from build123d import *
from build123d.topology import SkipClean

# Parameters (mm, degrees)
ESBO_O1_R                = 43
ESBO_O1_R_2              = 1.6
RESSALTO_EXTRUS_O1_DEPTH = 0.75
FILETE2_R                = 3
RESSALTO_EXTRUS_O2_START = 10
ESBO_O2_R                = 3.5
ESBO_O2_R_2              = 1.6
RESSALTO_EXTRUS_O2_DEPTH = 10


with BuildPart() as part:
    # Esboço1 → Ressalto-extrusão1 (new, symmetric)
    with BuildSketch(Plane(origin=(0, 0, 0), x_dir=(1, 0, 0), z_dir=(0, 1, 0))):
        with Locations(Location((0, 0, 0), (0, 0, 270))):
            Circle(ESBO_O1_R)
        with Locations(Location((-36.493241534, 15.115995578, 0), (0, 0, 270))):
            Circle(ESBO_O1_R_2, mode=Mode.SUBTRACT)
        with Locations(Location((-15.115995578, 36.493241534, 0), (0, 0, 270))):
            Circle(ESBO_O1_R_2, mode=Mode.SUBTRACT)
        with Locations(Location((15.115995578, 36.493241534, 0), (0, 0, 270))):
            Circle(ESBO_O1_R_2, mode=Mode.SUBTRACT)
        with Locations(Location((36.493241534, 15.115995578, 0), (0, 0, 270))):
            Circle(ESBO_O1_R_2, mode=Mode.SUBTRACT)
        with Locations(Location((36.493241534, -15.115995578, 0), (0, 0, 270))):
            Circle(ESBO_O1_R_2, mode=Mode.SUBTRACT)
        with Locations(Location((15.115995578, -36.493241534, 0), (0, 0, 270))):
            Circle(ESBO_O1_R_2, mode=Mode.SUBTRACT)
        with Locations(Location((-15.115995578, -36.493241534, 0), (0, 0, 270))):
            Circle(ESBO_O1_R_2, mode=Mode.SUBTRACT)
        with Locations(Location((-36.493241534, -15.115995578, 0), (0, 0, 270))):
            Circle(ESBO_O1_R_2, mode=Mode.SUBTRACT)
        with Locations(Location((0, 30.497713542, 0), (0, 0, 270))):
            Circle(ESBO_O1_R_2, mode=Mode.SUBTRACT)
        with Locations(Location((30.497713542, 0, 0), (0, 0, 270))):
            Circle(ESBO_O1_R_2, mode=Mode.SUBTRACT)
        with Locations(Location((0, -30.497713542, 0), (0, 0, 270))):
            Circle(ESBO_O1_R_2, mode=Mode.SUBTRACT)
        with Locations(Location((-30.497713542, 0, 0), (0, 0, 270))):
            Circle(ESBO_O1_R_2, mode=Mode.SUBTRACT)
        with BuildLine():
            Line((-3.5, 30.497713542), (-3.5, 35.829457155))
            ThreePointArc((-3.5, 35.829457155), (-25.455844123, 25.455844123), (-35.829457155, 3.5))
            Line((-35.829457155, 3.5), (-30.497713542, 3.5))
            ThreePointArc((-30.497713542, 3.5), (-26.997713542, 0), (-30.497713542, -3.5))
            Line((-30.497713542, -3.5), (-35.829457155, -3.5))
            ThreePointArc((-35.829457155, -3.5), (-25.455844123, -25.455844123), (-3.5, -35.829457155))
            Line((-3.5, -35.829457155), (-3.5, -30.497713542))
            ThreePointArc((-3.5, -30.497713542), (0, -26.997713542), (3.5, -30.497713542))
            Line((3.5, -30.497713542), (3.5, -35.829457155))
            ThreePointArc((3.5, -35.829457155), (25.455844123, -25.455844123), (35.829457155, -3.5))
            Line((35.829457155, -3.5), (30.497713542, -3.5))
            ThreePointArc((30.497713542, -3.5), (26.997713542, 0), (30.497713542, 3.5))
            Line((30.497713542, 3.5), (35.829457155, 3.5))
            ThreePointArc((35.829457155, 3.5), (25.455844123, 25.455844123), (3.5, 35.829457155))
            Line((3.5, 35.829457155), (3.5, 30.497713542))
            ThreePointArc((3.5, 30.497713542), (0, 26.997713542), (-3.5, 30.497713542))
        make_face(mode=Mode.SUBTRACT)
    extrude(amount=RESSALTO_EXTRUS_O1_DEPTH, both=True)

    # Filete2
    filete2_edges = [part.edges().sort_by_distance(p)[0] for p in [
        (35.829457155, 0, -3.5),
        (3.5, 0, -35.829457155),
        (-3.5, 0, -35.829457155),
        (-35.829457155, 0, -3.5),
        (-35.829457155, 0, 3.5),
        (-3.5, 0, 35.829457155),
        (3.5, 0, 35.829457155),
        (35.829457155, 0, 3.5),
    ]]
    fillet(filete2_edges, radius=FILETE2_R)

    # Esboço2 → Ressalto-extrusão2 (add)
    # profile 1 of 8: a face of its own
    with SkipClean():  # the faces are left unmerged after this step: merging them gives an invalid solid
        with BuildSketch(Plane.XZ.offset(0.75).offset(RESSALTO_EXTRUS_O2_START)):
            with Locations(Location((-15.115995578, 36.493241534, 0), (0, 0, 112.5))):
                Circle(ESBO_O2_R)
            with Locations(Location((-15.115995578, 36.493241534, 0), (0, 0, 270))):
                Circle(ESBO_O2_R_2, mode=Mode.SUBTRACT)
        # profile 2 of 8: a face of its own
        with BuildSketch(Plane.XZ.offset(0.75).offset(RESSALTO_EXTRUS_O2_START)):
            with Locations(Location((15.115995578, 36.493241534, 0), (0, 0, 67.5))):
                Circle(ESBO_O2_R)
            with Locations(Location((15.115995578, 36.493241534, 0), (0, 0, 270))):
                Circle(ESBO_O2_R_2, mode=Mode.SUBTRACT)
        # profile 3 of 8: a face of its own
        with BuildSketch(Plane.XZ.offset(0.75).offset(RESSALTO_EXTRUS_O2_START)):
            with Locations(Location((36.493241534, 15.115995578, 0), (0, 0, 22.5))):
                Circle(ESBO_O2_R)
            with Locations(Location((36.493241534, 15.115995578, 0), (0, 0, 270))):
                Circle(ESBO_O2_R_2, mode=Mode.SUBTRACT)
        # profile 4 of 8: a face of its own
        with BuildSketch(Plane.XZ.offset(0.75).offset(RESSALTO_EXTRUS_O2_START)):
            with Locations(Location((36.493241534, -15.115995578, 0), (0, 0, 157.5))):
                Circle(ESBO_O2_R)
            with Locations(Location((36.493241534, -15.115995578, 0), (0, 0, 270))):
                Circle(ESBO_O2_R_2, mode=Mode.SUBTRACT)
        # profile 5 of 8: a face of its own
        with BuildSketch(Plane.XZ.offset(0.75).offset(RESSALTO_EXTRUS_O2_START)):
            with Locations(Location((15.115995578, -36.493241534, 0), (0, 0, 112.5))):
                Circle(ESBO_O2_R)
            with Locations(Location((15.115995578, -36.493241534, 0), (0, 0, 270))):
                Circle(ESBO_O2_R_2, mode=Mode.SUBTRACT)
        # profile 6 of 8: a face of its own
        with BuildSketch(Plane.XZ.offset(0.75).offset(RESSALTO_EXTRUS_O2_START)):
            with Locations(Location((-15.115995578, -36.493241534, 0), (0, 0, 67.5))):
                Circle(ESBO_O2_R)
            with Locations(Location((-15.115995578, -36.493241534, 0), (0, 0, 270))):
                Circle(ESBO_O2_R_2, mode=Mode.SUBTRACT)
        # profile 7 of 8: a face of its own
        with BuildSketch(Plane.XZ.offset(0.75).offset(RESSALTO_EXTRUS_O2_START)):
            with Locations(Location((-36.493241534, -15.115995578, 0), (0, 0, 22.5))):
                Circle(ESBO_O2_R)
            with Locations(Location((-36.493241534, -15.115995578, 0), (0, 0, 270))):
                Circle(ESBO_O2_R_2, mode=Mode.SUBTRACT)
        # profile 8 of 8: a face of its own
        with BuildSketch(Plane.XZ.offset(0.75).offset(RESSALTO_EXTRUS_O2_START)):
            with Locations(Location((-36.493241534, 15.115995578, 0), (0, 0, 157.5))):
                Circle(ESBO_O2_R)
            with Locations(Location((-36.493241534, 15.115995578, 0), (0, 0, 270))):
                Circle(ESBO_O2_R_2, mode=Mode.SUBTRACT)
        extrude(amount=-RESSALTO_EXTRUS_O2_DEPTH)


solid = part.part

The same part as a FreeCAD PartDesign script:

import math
import FreeCAD as App
import Part
import Sketcher

V = App.Vector
Q = App.Units.Quantity


def edges_at(feature, points):
    """Names of the edges that pass closest to the given points."""
    edges = feature.Shape.Edges
    near = lambda p: min(range(len(edges)), key=lambda i: edges[i].distToShape(Part.Vertex(*p))[0])
    return sorted({f"Edge{near(p) + 1}" for p in points})

doc = App.newDocument("Part")
body = doc.addObject("PartDesign::Body", "Body")

sketch1 = body.newObject("Sketcher::SketchObject", "Sketch")
sketch1.AttachmentSupport = (doc.getObject("XZ_Plane"), [""])
sketch1.MapMode = "FlatFace"
sketch1.addGeometry([
    Part.Circle(V(0, 0, 0), V(0, 0, 1), 43),
    Part.Circle(V(-36.5, -15.1, 0), V(0, 0, 1), 1.6),
    Part.Circle(V(-15.1, -36.5, 0), V(0, 0, 1), 1.6),
    Part.Circle(V(0, -30.5, 0), V(0, 0, 1), 1.6),
    Part.Circle(V(-30.5, 0, 0), V(0, 0, 1), 1.6),
    Part.Circle(V(-36.5, 15.1, 0), V(0, 0, 1), 1.6),
    Part.Circle(V(-15.1, 36.5, 0), V(0, 0, 1), 1.6),
    Part.Circle(V(15.1, -36.5, 0), V(0, 0, 1), 1.6),
    Part.Circle(V(36.5, -15.1, 0), V(0, 0, 1), 1.6),
    Part.Circle(V(30.5, 0, 0), V(0, 0, 1), 1.6),
    Part.LineSegment(V(-3.5, -35.8, 0), V(-3.5, -30.5, 0)),
    Part.ArcOfCircle(Part.Circle(V(0, -30.5, 0), V(0, 0, 1), 3.5), math.radians(0), math.radians(180)),
    Part.LineSegment(V(3.5, -30.5, 0), V(3.5, -35.8, 0)),
    Part.ArcOfCircle(Part.Circle(V(0, 0, 0), V(0, 0, 1), 36), math.radians(-84), math.radians(-6)),
    Part.LineSegment(V(35.8, -3.5, 0), V(30.5, -3.5, 0)),
    Part.ArcOfCircle(Part.Circle(V(30.5, 0, 0), V(0, 0, 1), 3.5), math.radians(90), math.radians(270)),
    Part.LineSegment(V(30.5, 3.5, 0), V(35.8, 3.5, 0)),
    Part.ArcOfCircle(Part.Circle(V(0, 0, 0), V(0, 0, 1), 36), math.radians(6), math.radians(84)),
    Part.LineSegment(V(3.5, 35.8, 0), V(3.5, 30.5, 0)),
    Part.ArcOfCircle(Part.Circle(V(0, 30.5, 0), V(0, 0, 1), 3.5), math.radians(180), math.radians(360)),
    Part.LineSegment(V(-3.5, 30.5, 0), V(-3.5, 35.8, 0)),
    Part.ArcOfCircle(Part.Circle(V(0, 0, 0), V(0, 0, 1), 36), math.radians(96), math.radians(174)),
    Part.LineSegment(V(-35.8, 3.5, 0), V(-30.5, 3.5, 0)),
    Part.ArcOfCircle(Part.Circle(V(-30.5, 0, 0), V(0, 0, 1), 3.5), math.radians(-90), math.radians(90)),
    Part.LineSegment(V(-30.5, -3.5, 0), V(-35.8, -3.5, 0)),
    Part.ArcOfCircle(Part.Circle(V(0, 0, 0), V(0, 0, 1), 36), math.radians(-174), math.radians(-96)),
    Part.Circle(V(0, 30.5, 0), V(0, 0, 1), 1.6),
    Part.Circle(V(15.1, 36.5, 0), V(0, 0, 1), 1.6),
    Part.Circle(V(36.5, 15.1, 0), V(0, 0, 1), 1.6),
], False)
sketch1.addConstraint([
    Sketcher.Constraint("Tangent", 10, 2, 11, 2),
    Sketcher.Constraint("Tangent", 11, 1, 12, 1),
    Sketcher.Constraint("Coincident", 12, 2, 13, 1),
    Sketcher.Constraint("Coincident", 13, 2, 14, 1),
    Sketcher.Constraint("Tangent", 14, 2, 15, 2),
    Sketcher.Constraint("Tangent", 15, 1, 16, 1),
    Sketcher.Constraint("Coincident", 16, 2, 17, 1),
    Sketcher.Constraint("Coincident", 17, 2, 18, 1),
    Sketcher.Constraint("Tangent", 18, 2, 19, 2),
    Sketcher.Constraint("Tangent", 19, 1, 20, 1),
    Sketcher.Constraint("Coincident", 20, 2, 21, 1),
    Sketcher.Constraint("Coincident", 21, 2, 22, 1),
    Sketcher.Constraint("Tangent", 22, 2, 23, 2),
    Sketcher.Constraint("Tangent", 23, 1, 24, 1),
    Sketcher.Constraint("Coincident", 24, 2, 25, 1),
    Sketcher.Constraint("Coincident", 25, 2, 10, 1),
    Sketcher.Constraint("Vertical", 10),
    Sketcher.Constraint("Vertical", 12),
    Sketcher.Constraint("Horizontal", 14),
    Sketcher.Constraint("Horizontal", 16),
    Sketcher.Constraint("Vertical", 18),
    Sketcher.Constraint("Vertical", 20),
    Sketcher.Constraint("Horizontal", 22),
    Sketcher.Constraint("Horizontal", 24),
    Sketcher.Constraint("Coincident", 0, 3, -1, 1),
    Sketcher.Constraint("Coincident", 13, 3, -1, 1),
    Sketcher.Constraint("Coincident", 17, 3, -1, 1),
    Sketcher.Constraint("Coincident", 21, 3, -1, 1),
    Sketcher.Constraint("Coincident", 25, 3, -1, 1),
    Sketcher.Constraint("Coincident", 11, 3, 3, 3),
    Sketcher.Constraint("Coincident", 15, 3, 9, 3),
    Sketcher.Constraint("Coincident", 23, 3, 4, 3),
    Sketcher.Constraint("Coincident", 26, 3, 19, 3),
    Sketcher.Constraint("Equal", 1, 2),
    Sketcher.Constraint("Equal", 2, 3),
    Sketcher.Constraint("Equal", 3, 4),
    Sketcher.Constraint("Equal", 4, 5),
    Sketcher.Constraint("Equal", 5, 6),
    Sketcher.Constraint("Equal", 6, 7),
    Sketcher.Constraint("Equal", 7, 8),
    Sketcher.Constraint("Equal", 8, 9),
    Sketcher.Constraint("Equal", 11, 15),
    Sketcher.Constraint("Equal", 13, 17),
    Sketcher.Constraint("Equal", 15, 19),
    Sketcher.Constraint("Equal", 17, 21),
    Sketcher.Constraint("Equal", 19, 23),
    Sketcher.Constraint("Equal", 21, 25),
    Sketcher.Constraint("Equal", 9, 26),
    Sketcher.Constraint("Equal", 26, 27),
    Sketcher.Constraint("Equal", 27, 28),
    Sketcher.Constraint("Symmetric", 6, 3, 7, 3, -1, 1),
    Sketcher.Constraint("Symmetric", 5, 3, 8, 3, -1, 1),
    Sketcher.Constraint("Symmetric", 4, 3, 9, 3, -1, 1),
    Sketcher.Constraint("Symmetric", 3, 3, 19, 3, -1, 1),
    Sketcher.Constraint("Symmetric", 2, 3, 27, 3, -1, 1),
    Sketcher.Constraint("Symmetric", 1, 3, 28, 3, -1, 1),
    Sketcher.Constraint("Symmetric", 2, 3, 7, 3, -2),
    Sketcher.Constraint("Symmetric", 1, 3, 8, 3, -2),
    Sketcher.Constraint("PointOnObject", 3, 3, -2),
    Sketcher.Constraint("PointOnObject", 4, 3, -1),
    Sketcher.Constraint("Equal", 24, 10),
    Sketcher.Constraint("Diameter", 0, Q("86 mm")),
    Sketcher.Constraint("Radius", 13, Q("36 mm")),
    Sketcher.Constraint("Diameter", 1, Q("3.2 mm")),
    Sketcher.Constraint("Radius", 11, Q("3.5 mm")),
    Sketcher.Constraint("DistanceX", 14, 2, 14, 1, Q("5.331744 mm")),
    Sketcher.Constraint("DistanceX", 1, 3, -1, 1, Q("36.493242 mm")),
    Sketcher.Constraint("DistanceY", 2, 3, -1, 1, Q("36.493242 mm")),
    Sketcher.Constraint("DistanceY", 1, 3, 5, 3, Q("30.231991 mm")),
    Sketcher.Constraint("DistanceX", 2, 3, 7, 3, Q("30.231991 mm")),
])
pad1 = body.newObject("PartDesign::Pad", "Pad")
pad1.Profile = sketch1
pad1.Length = 1.5
pad1.Midplane = True
doc.recompute()

fillet = body.newObject("PartDesign::Fillet", "Fillet")
fillet.Base = (pad1, edges_at(pad1, [
    (35.829, 0, -3.5),
    (3.5, 0, -35.829),
    (-3.5, 0, -35.829),
    (-35.829, 0, -3.5),
    (-35.829, 0, 3.5),
    (-3.5, 0, 35.829),
    (3.5, 0, 35.829),
    (35.829, 0, 3.5),
]))
fillet.Radius = 3

sketch2 = body.newObject("Sketcher::SketchObject", "Sketch001")
sketch2.AttachmentSupport = (doc.getObject("XZ_Plane"), [""])
sketch2.MapMode = "FlatFace"
sketch2.AttachmentOffset = App.Placement(V(0, 0, 10.75), App.Rotation())
sketch2.addGeometry([
    Part.Circle(V(-15.1, 36.5, 0), V(0, 0, 1), 3.5),
    Part.Circle(V(-15.1, 36.5, 0), V(0, 0, 1), 1.6),
    Part.Circle(V(15.1, 36.5, 0), V(0, 0, 1), 3.5),
    Part.Circle(V(15.1, 36.5, 0), V(0, 0, 1), 1.6),
    Part.Circle(V(36.5, 15.1, 0), V(0, 0, 1), 3.5),
    Part.Circle(V(36.5, 15.1, 0), V(0, 0, 1), 1.6),
    Part.Circle(V(36.5, -15.1, 0), V(0, 0, 1), 3.5),
    Part.Circle(V(36.5, -15.1, 0), V(0, 0, 1), 1.6),
    Part.Circle(V(15.1, -36.5, 0), V(0, 0, 1), 3.5),
    Part.Circle(V(15.1, -36.5, 0), V(0, 0, 1), 1.6),
    Part.Circle(V(-15.1, -36.5, 0), V(0, 0, 1), 3.5),
    Part.Circle(V(-15.1, -36.5, 0), V(0, 0, 1), 1.6),
    Part.Circle(V(-36.5, -15.1, 0), V(0, 0, 1), 3.5),
    Part.Circle(V(-36.5, -15.1, 0), V(0, 0, 1), 1.6),
    Part.Circle(V(-36.5, 15.1, 0), V(0, 0, 1), 3.5),
    Part.Circle(V(-36.5, 15.1, 0), V(0, 0, 1), 1.6),
], False)
sketch2.addConstraint([
    Sketcher.Constraint("Coincident", 1, 3, 0, 3),
    Sketcher.Constraint("Coincident", 3, 3, 2, 3),
    Sketcher.Constraint("Coincident", 5, 3, 4, 3),
    Sketcher.Constraint("Coincident", 7, 3, 6, 3),
    Sketcher.Constraint("Coincident", 9, 3, 8, 3),
    Sketcher.Constraint("Coincident", 11, 3, 10, 3),
    Sketcher.Constraint("Coincident", 13, 3, 12, 3),
    Sketcher.Constraint("Coincident", 15, 3, 14, 3),
    Sketcher.Constraint("Equal", 0, 2),
    Sketcher.Constraint("Equal", 1, 3),
    Sketcher.Constraint("Equal", 2, 4),
    Sketcher.Constraint("Equal", 3, 5),
    Sketcher.Constraint("Equal", 4, 6),
    Sketcher.Constraint("Equal", 5, 7),
    Sketcher.Constraint("Equal", 6, 8),
    Sketcher.Constraint("Equal", 7, 9),
    Sketcher.Constraint("Equal", 8, 10),
    Sketcher.Constraint("Equal", 9, 11),
    Sketcher.Constraint("Equal", 10, 12),
    Sketcher.Constraint("Equal", 11, 13),
    Sketcher.Constraint("Equal", 12, 14),
    Sketcher.Constraint("Equal", 13, 15),
    Sketcher.Constraint("Symmetric", 0, 3, 8, 3, -1, 1),
    Sketcher.Constraint("Symmetric", 2, 3, 10, 3, -1, 1),
    Sketcher.Constraint("Symmetric", 4, 3, 12, 3, -1, 1),
    Sketcher.Constraint("Symmetric", 6, 3, 14, 3, -1, 1),
    Sketcher.Constraint("Symmetric", 0, 3, 2, 3, -2),
    Sketcher.Constraint("Symmetric", 6, 3, 12, 3, -2),
    Sketcher.Constraint("Diameter", 0, Q("7 mm")),
    Sketcher.Constraint("Diameter", 1, Q("3.2 mm")),
    Sketcher.Constraint("DistanceY", -1, 1, 0, 3, Q("36.493242 mm")),
    Sketcher.Constraint("DistanceX", -1, 1, 4, 3, Q("36.493242 mm")),
    Sketcher.Constraint("DistanceX", 0, 3, 2, 3, Q("30.231991 mm")),
    Sketcher.Constraint("DistanceY", 6, 3, 4, 3, Q("30.231991 mm")),
])
pad2 = body.newObject("PartDesign::Pad", "Pad001")
pad2.Profile = sketch2
pad2.Length = 10
pad2.Reversed = True

doc.recompute()
